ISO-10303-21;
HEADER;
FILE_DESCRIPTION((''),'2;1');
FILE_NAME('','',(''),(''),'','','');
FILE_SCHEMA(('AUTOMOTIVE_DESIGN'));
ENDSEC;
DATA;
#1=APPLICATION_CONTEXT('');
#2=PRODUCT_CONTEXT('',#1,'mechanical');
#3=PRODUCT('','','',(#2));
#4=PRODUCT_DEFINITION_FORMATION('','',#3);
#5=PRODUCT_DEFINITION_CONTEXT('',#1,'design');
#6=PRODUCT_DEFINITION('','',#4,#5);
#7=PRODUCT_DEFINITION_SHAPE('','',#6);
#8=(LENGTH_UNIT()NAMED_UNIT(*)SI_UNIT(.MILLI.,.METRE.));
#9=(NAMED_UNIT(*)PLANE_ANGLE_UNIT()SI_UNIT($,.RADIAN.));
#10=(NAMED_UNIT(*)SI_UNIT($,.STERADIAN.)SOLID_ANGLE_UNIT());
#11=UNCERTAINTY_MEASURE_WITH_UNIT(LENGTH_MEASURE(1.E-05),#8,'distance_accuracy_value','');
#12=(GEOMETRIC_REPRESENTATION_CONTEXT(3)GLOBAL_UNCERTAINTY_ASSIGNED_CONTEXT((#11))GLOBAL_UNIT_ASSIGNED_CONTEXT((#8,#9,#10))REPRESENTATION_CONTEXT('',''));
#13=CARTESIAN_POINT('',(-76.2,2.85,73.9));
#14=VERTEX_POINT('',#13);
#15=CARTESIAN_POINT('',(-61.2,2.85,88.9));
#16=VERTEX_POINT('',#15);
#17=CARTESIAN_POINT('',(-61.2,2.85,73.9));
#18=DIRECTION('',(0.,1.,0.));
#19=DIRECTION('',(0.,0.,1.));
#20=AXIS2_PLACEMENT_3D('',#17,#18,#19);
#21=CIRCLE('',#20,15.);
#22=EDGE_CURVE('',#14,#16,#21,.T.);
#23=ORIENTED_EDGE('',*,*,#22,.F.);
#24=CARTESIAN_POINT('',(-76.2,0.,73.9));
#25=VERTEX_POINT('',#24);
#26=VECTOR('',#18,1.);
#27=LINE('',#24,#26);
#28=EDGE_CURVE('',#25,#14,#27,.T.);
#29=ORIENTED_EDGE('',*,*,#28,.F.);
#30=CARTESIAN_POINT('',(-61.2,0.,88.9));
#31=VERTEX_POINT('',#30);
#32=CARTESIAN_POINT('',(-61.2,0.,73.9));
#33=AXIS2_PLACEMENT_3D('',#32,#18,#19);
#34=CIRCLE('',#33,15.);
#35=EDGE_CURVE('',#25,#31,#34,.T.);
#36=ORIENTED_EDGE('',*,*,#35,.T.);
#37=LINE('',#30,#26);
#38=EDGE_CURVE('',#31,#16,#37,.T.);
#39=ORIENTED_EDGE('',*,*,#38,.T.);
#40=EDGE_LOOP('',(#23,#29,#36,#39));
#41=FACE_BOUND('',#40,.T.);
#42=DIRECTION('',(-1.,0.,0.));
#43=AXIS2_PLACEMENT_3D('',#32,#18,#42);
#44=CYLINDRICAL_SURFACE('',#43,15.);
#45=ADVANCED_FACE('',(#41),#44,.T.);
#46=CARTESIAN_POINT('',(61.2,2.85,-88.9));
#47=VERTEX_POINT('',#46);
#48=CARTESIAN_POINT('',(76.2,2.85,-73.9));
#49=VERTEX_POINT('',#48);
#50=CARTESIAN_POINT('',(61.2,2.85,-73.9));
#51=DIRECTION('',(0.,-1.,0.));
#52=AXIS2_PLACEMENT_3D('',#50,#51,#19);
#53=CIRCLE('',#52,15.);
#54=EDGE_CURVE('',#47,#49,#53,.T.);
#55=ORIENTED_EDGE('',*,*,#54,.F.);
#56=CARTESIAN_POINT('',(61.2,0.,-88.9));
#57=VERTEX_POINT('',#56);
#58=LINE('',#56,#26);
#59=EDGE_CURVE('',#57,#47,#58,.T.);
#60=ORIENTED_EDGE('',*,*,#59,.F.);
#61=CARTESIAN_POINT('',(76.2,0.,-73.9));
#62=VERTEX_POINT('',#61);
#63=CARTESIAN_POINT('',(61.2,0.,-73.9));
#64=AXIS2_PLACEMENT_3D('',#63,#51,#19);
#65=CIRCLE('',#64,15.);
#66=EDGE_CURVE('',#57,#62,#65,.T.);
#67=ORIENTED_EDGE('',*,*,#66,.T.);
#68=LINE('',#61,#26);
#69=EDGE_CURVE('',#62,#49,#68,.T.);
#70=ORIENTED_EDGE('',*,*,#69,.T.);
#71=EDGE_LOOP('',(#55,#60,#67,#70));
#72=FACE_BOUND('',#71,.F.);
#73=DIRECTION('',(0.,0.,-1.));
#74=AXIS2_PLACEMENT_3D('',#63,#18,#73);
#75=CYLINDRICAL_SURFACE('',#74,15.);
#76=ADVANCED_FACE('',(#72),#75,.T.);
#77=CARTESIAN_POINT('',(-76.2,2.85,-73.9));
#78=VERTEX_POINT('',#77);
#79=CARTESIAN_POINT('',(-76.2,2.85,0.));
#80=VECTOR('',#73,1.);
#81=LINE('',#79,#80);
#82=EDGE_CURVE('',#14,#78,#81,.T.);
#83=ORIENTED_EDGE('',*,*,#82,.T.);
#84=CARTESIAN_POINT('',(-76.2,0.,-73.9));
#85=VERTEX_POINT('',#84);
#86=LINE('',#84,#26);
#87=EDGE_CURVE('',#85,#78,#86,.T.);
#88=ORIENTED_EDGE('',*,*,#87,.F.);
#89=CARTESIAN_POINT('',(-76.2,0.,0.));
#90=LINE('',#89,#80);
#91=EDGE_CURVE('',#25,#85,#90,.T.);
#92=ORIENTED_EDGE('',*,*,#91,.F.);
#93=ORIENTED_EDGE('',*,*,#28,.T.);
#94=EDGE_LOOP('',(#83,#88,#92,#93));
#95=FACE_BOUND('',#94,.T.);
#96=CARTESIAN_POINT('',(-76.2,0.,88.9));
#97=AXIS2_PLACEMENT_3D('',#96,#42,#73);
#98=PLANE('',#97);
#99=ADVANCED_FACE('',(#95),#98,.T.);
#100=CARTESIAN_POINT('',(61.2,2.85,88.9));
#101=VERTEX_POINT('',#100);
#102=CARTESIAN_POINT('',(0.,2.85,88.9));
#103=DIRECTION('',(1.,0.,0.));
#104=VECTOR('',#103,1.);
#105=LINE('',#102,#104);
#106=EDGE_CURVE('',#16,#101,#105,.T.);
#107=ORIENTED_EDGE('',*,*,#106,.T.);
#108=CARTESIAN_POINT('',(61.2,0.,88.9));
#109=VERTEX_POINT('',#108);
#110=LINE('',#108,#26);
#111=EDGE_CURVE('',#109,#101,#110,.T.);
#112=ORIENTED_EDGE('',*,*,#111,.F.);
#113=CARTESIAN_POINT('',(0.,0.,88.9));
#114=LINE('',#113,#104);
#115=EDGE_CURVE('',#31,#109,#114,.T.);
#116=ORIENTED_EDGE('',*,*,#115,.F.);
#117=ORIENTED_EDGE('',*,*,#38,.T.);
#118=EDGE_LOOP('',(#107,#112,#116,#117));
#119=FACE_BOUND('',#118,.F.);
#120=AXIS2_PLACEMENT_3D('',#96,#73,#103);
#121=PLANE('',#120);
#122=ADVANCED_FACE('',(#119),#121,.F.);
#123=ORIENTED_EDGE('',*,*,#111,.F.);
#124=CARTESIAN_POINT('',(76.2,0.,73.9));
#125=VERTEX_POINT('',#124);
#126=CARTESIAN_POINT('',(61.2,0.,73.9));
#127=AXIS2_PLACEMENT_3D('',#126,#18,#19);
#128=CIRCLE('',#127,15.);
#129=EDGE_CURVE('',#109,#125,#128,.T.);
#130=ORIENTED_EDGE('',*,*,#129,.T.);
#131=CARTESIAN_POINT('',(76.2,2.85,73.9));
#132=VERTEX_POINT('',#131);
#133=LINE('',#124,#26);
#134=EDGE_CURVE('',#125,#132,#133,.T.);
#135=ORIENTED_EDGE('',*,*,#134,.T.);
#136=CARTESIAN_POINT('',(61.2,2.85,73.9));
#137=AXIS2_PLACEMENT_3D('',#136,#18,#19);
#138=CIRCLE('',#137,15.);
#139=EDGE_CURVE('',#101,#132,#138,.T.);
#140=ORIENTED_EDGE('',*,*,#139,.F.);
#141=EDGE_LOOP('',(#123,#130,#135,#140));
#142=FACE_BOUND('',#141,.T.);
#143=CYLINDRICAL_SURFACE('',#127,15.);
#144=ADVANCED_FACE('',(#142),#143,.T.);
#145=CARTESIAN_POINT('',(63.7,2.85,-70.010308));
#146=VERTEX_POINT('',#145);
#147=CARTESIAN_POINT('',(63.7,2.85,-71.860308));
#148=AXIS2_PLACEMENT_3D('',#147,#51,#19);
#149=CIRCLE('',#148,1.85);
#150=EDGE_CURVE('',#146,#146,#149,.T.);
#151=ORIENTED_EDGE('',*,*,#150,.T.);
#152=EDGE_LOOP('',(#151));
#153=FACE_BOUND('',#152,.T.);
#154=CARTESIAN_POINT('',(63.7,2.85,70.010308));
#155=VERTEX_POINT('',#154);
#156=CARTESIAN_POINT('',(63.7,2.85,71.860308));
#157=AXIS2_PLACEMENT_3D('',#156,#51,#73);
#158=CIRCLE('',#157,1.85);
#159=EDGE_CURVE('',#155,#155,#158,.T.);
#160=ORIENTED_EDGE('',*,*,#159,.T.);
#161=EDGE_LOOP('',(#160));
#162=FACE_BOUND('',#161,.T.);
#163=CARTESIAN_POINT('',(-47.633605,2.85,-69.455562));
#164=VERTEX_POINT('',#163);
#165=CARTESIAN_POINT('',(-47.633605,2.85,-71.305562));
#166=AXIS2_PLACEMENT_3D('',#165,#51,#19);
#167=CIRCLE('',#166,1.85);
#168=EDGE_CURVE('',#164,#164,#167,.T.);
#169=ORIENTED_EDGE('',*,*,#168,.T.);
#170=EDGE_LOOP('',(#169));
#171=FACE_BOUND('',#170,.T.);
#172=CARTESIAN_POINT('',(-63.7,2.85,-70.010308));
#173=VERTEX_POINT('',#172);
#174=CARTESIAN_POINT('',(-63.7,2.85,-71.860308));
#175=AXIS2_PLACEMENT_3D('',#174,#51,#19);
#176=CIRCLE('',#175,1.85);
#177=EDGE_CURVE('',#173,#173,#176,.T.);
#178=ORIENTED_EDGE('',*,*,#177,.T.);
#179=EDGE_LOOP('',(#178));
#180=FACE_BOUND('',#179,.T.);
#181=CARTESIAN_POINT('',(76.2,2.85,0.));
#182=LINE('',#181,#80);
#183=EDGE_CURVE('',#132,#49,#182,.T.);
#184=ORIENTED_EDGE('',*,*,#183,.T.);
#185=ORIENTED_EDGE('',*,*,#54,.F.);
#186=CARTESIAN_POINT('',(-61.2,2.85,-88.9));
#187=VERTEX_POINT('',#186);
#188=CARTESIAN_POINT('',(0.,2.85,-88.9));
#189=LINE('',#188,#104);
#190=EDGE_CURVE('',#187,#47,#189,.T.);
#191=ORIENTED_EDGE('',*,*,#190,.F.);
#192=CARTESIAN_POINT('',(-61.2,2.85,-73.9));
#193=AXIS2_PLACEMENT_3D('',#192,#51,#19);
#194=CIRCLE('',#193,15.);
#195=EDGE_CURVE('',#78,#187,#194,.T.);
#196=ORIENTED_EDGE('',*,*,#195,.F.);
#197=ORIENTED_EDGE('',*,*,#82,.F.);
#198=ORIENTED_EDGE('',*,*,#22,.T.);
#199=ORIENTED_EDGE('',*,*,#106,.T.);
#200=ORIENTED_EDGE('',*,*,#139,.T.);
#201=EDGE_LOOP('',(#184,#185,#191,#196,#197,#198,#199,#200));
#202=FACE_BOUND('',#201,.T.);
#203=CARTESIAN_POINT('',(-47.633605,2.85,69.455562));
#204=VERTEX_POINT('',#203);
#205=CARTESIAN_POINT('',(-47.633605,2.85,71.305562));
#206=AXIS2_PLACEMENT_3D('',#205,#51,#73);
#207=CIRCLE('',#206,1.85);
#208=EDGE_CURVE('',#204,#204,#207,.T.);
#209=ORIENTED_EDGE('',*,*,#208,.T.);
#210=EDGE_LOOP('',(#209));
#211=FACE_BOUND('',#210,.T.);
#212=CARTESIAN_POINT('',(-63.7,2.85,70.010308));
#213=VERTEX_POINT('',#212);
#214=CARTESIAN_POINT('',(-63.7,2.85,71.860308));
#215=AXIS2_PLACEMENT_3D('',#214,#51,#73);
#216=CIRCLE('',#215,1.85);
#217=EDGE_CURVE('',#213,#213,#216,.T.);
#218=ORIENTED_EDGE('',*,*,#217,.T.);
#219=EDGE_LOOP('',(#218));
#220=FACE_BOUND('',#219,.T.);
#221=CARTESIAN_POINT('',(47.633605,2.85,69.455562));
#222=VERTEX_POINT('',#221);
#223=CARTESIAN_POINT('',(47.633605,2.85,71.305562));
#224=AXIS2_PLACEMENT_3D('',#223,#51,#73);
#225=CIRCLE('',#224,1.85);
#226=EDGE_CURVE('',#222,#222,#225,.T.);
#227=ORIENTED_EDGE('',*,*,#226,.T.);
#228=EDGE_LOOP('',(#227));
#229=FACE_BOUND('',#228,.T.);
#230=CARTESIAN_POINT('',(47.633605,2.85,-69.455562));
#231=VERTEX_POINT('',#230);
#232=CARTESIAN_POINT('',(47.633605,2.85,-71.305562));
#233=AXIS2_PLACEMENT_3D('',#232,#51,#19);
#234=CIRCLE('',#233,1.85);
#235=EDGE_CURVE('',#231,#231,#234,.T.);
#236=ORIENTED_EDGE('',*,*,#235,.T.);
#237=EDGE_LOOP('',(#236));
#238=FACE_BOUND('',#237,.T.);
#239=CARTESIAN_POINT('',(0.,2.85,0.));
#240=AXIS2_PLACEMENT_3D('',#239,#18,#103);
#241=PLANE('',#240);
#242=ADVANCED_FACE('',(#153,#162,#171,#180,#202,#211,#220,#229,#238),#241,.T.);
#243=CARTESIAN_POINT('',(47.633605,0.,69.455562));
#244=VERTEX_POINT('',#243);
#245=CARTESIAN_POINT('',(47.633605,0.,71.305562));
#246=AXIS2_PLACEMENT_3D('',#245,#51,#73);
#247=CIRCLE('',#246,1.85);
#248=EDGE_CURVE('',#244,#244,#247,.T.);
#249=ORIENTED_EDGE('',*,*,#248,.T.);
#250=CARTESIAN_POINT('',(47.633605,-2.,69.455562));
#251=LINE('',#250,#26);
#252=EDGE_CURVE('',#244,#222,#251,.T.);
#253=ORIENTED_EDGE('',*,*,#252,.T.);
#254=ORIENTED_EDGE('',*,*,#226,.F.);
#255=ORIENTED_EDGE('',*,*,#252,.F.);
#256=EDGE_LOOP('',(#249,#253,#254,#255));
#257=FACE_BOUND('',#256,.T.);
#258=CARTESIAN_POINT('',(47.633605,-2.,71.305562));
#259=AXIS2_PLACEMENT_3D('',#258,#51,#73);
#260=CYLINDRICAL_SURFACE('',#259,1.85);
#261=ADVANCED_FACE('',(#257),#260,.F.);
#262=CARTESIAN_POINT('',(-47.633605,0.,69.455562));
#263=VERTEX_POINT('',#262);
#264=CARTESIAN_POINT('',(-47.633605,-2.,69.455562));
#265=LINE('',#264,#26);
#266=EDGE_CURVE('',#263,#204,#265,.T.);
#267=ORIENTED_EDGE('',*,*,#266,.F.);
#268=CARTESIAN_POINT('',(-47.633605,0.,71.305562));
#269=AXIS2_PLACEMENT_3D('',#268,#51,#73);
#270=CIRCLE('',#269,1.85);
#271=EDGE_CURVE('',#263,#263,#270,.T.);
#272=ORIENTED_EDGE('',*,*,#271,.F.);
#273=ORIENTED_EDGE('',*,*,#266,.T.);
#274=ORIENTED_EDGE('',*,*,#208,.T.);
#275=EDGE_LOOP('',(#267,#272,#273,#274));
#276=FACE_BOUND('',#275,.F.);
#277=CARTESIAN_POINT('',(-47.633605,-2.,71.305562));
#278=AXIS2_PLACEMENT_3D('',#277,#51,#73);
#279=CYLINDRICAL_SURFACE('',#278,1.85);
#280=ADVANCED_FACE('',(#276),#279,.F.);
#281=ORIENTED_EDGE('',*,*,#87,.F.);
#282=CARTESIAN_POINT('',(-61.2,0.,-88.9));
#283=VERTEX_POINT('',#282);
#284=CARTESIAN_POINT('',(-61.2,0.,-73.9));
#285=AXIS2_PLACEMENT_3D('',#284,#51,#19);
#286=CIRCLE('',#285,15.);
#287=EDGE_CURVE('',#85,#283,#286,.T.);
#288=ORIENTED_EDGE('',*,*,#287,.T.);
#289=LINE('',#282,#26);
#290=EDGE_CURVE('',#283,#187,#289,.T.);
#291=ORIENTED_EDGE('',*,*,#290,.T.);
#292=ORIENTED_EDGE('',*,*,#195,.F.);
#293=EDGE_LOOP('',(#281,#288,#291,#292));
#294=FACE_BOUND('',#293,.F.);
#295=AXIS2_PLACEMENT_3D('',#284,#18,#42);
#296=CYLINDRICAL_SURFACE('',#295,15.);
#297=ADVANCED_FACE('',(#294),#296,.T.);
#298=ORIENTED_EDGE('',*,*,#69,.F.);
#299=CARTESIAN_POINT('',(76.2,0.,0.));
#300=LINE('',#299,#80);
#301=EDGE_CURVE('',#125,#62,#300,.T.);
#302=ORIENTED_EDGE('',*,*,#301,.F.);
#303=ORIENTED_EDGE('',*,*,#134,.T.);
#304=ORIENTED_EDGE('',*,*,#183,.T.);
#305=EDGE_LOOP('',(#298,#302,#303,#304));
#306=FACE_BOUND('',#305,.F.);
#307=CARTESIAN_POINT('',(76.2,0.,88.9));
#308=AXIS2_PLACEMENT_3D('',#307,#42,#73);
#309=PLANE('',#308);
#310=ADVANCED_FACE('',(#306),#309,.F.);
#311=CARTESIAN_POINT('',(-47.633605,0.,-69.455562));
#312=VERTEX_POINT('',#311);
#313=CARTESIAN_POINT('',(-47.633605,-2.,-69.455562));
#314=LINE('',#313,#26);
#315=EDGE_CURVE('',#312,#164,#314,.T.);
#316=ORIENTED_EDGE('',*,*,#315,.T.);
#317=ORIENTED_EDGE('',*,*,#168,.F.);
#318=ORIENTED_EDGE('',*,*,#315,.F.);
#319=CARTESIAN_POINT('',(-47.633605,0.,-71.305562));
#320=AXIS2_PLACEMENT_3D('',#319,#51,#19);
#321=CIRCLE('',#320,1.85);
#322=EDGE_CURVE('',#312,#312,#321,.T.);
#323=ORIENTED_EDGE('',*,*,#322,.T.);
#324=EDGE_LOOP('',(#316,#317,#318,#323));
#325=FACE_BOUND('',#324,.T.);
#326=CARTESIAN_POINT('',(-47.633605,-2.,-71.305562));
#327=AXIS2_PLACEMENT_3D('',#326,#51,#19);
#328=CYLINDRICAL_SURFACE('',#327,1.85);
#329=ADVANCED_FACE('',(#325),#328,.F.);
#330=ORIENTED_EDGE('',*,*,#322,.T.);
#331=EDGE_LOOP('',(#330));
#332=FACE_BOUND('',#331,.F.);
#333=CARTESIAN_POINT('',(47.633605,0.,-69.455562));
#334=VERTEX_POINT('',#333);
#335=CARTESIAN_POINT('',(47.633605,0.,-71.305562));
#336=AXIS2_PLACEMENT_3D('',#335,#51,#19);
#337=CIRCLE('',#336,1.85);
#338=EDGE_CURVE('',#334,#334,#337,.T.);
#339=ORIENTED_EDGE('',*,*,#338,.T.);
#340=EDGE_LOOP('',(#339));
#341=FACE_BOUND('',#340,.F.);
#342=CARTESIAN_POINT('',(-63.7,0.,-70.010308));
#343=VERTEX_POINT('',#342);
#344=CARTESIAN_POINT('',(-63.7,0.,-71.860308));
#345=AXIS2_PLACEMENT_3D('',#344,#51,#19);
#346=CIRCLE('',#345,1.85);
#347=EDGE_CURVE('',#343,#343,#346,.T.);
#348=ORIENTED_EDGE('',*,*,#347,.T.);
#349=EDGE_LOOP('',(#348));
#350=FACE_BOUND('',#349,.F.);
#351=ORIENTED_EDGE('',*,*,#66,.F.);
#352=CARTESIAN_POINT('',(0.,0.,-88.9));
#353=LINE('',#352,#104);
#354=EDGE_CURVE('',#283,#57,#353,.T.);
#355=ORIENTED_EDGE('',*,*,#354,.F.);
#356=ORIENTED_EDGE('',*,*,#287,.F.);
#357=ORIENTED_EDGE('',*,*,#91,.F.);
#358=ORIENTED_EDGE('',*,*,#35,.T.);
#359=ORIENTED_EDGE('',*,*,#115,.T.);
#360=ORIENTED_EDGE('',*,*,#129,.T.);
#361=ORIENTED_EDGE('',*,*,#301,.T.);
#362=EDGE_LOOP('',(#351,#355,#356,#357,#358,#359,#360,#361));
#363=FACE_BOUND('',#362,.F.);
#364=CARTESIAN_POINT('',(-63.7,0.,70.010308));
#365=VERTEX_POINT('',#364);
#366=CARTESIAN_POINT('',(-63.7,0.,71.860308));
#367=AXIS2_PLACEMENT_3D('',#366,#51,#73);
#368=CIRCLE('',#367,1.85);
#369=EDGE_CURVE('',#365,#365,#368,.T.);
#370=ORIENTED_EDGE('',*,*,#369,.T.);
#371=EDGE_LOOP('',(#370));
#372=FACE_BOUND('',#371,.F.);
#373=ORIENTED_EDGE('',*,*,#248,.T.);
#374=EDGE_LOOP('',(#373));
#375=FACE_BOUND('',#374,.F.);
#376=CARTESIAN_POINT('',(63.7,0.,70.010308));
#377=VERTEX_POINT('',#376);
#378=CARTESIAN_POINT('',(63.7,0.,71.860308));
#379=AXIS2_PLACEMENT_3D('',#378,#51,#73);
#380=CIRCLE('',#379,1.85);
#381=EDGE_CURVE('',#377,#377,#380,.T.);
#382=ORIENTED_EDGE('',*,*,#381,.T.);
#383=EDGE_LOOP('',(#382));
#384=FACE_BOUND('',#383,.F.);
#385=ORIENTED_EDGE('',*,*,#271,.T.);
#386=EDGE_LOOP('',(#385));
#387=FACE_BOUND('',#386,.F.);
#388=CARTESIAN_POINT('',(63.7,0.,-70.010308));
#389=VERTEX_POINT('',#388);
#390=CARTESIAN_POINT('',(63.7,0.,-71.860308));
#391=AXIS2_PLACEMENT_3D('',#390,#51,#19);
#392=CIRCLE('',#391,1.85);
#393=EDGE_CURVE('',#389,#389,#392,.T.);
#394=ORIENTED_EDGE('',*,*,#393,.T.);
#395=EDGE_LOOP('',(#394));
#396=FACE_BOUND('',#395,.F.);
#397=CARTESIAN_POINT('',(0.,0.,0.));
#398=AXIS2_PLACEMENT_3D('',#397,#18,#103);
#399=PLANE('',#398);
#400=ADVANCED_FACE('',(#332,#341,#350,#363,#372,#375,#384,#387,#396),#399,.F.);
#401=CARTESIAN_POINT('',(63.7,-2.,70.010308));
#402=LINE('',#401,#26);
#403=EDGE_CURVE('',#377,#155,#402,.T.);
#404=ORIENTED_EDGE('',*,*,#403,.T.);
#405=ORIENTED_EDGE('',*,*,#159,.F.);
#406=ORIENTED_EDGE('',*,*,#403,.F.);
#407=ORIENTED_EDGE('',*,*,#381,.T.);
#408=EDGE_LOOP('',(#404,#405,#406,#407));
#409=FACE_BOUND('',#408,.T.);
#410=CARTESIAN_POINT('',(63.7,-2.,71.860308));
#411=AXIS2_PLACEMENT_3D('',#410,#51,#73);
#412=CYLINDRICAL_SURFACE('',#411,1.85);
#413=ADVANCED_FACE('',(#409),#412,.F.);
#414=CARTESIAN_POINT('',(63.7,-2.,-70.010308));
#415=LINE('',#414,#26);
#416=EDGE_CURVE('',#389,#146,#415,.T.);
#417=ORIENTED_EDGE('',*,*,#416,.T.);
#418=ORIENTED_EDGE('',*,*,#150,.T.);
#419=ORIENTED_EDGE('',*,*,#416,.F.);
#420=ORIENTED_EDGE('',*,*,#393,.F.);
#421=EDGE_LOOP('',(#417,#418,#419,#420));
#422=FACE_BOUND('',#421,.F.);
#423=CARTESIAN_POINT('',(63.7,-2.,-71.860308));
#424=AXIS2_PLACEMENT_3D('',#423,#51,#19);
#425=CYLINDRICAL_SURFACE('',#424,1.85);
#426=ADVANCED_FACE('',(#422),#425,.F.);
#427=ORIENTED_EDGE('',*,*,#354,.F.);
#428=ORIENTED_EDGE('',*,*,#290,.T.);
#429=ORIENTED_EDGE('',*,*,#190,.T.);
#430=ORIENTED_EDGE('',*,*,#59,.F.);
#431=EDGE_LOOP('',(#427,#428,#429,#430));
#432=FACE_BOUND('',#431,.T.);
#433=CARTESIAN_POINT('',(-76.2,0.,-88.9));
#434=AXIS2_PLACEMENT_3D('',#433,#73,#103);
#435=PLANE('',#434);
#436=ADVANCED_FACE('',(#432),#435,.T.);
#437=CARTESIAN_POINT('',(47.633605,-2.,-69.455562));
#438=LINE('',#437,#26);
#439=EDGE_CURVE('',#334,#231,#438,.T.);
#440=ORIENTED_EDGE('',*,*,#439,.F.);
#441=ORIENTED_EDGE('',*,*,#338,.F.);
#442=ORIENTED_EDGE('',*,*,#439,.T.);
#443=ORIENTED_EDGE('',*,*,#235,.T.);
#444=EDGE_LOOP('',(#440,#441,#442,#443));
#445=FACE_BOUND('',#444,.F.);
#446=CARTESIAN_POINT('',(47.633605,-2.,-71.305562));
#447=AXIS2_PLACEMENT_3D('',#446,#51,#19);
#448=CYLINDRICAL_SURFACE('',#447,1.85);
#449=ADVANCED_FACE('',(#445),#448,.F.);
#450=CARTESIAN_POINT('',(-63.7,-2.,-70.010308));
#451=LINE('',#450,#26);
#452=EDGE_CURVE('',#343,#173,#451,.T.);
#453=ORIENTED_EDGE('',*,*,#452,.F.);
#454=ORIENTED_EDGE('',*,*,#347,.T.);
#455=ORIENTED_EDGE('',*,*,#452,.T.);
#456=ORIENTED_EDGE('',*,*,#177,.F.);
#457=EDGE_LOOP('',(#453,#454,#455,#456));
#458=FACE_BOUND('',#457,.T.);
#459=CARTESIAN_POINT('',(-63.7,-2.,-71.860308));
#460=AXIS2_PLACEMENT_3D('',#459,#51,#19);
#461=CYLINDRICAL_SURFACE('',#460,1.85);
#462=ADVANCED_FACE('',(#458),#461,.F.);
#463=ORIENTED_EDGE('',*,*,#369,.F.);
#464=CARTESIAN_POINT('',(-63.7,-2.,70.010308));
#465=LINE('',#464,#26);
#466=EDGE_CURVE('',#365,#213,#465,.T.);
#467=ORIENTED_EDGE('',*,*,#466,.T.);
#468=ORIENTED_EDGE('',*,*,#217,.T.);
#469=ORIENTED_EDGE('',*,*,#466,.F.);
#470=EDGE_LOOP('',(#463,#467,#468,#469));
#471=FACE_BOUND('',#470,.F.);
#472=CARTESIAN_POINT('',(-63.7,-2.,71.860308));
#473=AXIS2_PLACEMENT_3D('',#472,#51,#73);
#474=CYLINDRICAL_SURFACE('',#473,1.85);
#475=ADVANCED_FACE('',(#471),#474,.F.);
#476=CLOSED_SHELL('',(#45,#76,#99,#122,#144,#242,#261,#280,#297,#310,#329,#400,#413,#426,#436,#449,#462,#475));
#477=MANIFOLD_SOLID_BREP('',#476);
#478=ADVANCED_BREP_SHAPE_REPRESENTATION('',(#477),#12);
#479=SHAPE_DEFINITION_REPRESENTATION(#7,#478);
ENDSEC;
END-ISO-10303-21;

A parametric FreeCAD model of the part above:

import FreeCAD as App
import Part
import Sketcher
Q = App.Units.Quantity


def edges_at(feature, points):
    """Names of the edges that pass closest to the given points."""
    edges = feature.Shape.Edges
    near = lambda p: min(range(len(edges)), key=lambda i: edges[i].distToShape(Part.Vertex(*p))[0])
    return sorted({f"Edge{near(p) + 1}" for p in points})


def add_polygon(sketch, points):
    """Adds a closed chain of lines whose ends are joined by coincident constraints."""
    first, n = sketch.GeometryCount, len(points)
    for a, b in zip(points, points[1:] + points[:1]):
        sketch.addGeometry(Part.LineSegment(App.Vector(*a, 0), App.Vector(*b, 0)), False)
    for i in range(n):
        sketch.addConstraint(Sketcher.Constraint("Coincident", first + i, 2, first + (i + 1) % n, 1))

doc = App.newDocument("Part")
body = doc.addObject("PartDesign::Body", "Body")

# Sketch on XZ plane
sketch1 = body.newObject("Sketcher::SketchObject", "Sketch")
sketch1.AttachmentSupport = (doc.getObject("XZ_Plane"), [""])
sketch1.MapMode = "FlatFace"
add_polygon(sketch1, [(-76.2, -88.9), (-76.2, 88.9), (76.2, 88.9), (76.2, -88.9)])  # lines 0-3
sketch1.addConstraint([
    Sketcher.Constraint("Vertical", 0),
    Sketcher.Constraint("Horizontal", 1),
    Sketcher.Constraint("Vertical", 2),
    Sketcher.Constraint("Horizontal", 3),
    Sketcher.Constraint("Symmetric", 0, 2, 2, 2, -1, 1),
    Sketcher.Constraint("DistanceX", 1, 1, 1, 2, Q("152.4 mm")),
    Sketcher.Constraint("DistanceY", 0, 1, 0, 2, Q("177.8 mm")),
])
pad1 = body.newObject("PartDesign::Pad", "Pad")
pad1.Profile = sketch1
pad1.Length = 2.85
pad1.Reversed = True

# Sketch on XZ plane
sketch2 = body.newObject("Sketcher::SketchObject", "Sketch001")
sketch2.AttachmentSupport = (doc.getObject("XZ_Plane"), [""])
sketch2.MapMode = "FlatFace"
sketch2.AttachmentOffset = App.Placement(App.Vector(0, 0, 2), App.Rotation())
sketch2.addGeometry([
    Part.Circle(App.Vector(-63.7, 71.860308, 0), App.Vector(0, 0, 1), 1.85),
    Part.Circle(App.Vector(-47.633605, 71.305562, 0), App.Vector(0, 0, 1), 1.85),
], False)
sketch2.addConstraint([
    Sketcher.Constraint("Equal", 0, 1),
    Sketcher.Constraint("Diameter", 0, Q("3.7 mm")),
    Sketcher.Constraint("DistanceX", 0, 3, -1, 1, Q("63.7 mm")),
    Sketcher.Constraint("DistanceY", -1, 1, 0, 3, Q("71.860308 mm")),
    Sketcher.Constraint("DistanceY", -1, 1, 1, 3, Q("71.305562 mm")),
    Sketcher.Constraint("DistanceX", 1, 3, -1, 1, Q("47.633605 mm")),
])
pocket1 = body.newObject("PartDesign::Pocket", "Pocket")
pocket1.Profile = sketch2
pocket1.Type = "ThroughAll"
doc.recompute()

mirrored = body.newObject("PartDesign::Mirrored", "Mirrored")
mirrored.Originals = [pocket1]
mirrored.MirrorPlane = (doc.getObject("XY_Plane"), [""])
body.Tip = mirrored
doc.recompute()

mirrored2 = body.newObject("PartDesign::Mirrored", "Mirrored001")
mirrored2.Originals = [pocket1]
mirrored2.MirrorPlane = (doc.getObject("YZ_Plane"), [""])
body.Tip = mirrored2

# Sketch on XZ plane
sketch3 = body.newObject("Sketcher::SketchObject", "Sketch002")
sketch3.AttachmentSupport = (doc.getObject("XZ_Plane"), [""])
sketch3.MapMode = "FlatFace"
sketch3.AttachmentOffset = App.Placement(App.Vector(0, 0, 2), App.Rotation())
sketch3.addGeometry([
    Part.Circle(App.Vector(63.7, -71.860308, 0), App.Vector(0, 0, 1), 1.85),
    Part.Circle(App.Vector(47.633605, -71.305562, 0), App.Vector(0, 0, 1), 1.85),
], False)
sketch3.addConstraint([
    Sketcher.Constraint("Equal", 0, 1),
    Sketcher.Constraint("Diameter", 0, Q("3.7 mm")),
    Sketcher.Constraint("DistanceX", -1, 1, 0, 3, Q("63.7 mm")),
    Sketcher.Constraint("DistanceY", 0, 3, -1, 1, Q("71.860308 mm")),
    Sketcher.Constraint("DistanceY", 1, 3, -1, 1, Q("71.305562 mm")),
    Sketcher.Constraint("DistanceX", -1, 1, 1, 3, Q("47.633605 mm")),
])
pocket2 = body.newObject("PartDesign::Pocket", "Pocket001")
pocket2.Profile = sketch3
pocket2.Type = "ThroughAll"
doc.recompute()

fillet = body.newObject("PartDesign::Fillet", "Fillet")
fillet.Base = (pocket2, edges_at(pocket2, [
    (76.2, 1.425, 88.9),
    (-76.2, 1.425, 88.9),
    (-76.2, 1.425, -88.9),
    (76.2, 1.425, -88.9),
]))
fillet.Radius = 15

doc.recompute()
